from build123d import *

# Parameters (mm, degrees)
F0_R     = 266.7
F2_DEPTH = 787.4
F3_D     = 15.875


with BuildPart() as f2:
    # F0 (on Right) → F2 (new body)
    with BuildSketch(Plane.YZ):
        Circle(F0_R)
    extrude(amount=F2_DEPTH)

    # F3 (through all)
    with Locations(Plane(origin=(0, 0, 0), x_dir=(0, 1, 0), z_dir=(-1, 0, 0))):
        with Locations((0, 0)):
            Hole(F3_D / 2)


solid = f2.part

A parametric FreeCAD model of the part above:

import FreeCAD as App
import Part
import Sketcher
from FreeCAD import Vector
Q = App.Units.Quantity

doc = App.newDocument("Part")
body = doc.addObject("PartDesign::Body", "Body")

sketch1 = body.newObject("Sketcher::SketchObject", "Sketch")
sketch1.AttachmentSupport = (doc.getObject("YZ_Plane"), [""])
sketch1.MapMode = "FlatFace"
sketch1.addGeometry(Part.Circle(Vector(0, 0, 0), Vector(0, 0, 1), 267), False)
sketch1.addConstraint(Sketcher.Constraint("Coincident", 0, 3, -1, 1))
sketch1.addConstraint(Sketcher.Constraint("Diameter", 0, Q("21 in")))
pad1 = body.newObject("PartDesign::Pad", "Pad")
pad1.Profile = sketch1
pad1.Length = Q("31 in")

sketch2 = body.newObject("Sketcher::SketchObject", "Sketch001")
sketch2.AttachmentSupport = (doc.getObject("YZ_Plane"), [""])
sketch2.MapMode = "FlatFace"
sketch2.addGeometry(Part.Circle(Vector(0, 0, 0), Vector(0, 0, 1), 8), False)
sketch2.addConstraint(Sketcher.Constraint("Coincident", 0, 3, -1, 1))
sketch2.addConstraint(Sketcher.Constraint("Diameter", 0, Q("0.625 in")))
doc.recompute()
hole = body.newObject("PartDesign::Hole", "Hole")
hole.Profile = sketch2
hole.ThreadType = "None"
hole.Diameter = Q("0.625 in")
hole.DepthType = "ThroughAll"
hole.Reversed = True

doc.recompute()
